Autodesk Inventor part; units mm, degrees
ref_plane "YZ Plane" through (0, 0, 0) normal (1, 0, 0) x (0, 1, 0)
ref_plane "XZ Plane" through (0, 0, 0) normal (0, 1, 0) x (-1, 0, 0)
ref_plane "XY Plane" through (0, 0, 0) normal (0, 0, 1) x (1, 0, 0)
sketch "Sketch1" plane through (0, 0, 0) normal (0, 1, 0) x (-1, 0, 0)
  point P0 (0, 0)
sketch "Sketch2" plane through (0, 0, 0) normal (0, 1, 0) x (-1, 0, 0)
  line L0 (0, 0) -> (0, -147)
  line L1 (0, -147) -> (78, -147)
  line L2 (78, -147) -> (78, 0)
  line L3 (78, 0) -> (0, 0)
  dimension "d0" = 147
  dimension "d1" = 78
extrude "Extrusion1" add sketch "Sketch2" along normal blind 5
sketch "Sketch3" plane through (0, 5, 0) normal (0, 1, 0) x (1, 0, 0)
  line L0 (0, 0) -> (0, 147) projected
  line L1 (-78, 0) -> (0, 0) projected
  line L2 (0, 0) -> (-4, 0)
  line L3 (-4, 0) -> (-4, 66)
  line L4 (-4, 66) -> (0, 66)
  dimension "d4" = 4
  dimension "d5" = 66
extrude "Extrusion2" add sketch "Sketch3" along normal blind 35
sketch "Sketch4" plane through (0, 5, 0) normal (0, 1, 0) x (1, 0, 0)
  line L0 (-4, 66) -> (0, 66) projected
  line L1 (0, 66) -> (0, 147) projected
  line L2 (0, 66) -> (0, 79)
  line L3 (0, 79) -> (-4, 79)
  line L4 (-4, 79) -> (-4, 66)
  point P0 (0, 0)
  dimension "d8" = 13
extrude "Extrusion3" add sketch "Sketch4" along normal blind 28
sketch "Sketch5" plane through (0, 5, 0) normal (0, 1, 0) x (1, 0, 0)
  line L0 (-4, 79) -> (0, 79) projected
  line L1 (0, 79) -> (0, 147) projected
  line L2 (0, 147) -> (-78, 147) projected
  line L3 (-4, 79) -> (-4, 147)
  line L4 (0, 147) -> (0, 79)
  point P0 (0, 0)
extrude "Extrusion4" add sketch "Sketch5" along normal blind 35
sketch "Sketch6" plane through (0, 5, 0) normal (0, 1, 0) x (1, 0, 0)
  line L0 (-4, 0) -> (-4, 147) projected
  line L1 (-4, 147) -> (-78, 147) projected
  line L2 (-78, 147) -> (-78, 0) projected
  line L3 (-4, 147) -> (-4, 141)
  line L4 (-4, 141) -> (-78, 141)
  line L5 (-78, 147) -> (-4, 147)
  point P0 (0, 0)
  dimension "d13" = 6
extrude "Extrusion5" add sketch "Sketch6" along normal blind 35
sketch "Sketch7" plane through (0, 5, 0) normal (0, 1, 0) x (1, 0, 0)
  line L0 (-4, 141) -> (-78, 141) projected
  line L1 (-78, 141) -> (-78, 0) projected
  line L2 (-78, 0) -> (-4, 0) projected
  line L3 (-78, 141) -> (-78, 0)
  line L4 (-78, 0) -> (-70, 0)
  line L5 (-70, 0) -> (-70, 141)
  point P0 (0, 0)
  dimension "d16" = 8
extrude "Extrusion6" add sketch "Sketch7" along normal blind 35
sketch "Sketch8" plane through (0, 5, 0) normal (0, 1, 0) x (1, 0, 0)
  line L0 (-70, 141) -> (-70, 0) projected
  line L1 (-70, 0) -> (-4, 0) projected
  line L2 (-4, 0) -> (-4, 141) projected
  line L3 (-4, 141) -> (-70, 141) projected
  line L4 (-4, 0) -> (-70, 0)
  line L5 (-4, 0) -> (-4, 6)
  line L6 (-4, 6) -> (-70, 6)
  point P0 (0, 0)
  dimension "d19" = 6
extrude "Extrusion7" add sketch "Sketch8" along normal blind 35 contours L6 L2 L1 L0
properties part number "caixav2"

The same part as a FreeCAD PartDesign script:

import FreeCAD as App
import Part
import Sketcher
Q = App.Units.Quantity

doc = App.newDocument("Part")
params = doc.addObject("Spreadsheet::Sheet", "Params")
for row, (alias, value) in enumerate([
    ("sketch1_width", "78 mm"),
    ("sketch1_height", "147 mm"),
    ("pad1_length", "5 mm"),
    ("sketch2_width", "4 mm"),
    ("sketch2_height", "66 mm"),
    ("pad2_length", "35 mm"),
    ("sketch3_height", "13 mm"),
    ("sketch3_width", "4 mm"),
    ("pad3_length", "28 mm"),
    ("sketch4_width", "4 mm"),
    ("sketch4_height", "68 mm"),
    ("pad4_length", "35 mm"),
    ("sketch5_height", "6 mm"),
    ("sketch5_width", "74 mm"),
    ("pad5_length", "35 mm"),
    ("sketch6_width", "8 mm"),
    ("sketch6_height", "141 mm"),
    ("pad6_length", "35 mm"),
    ("sketch7_height", "6 mm"),
    ("sketch7_width", "66 mm"),
    ("pad7_length", "35 mm"),
], start=1):
    params.set(f"A{row}", alias)
    params.set(f"B{row}", "=" + value)
    params.setAlias(f"B{row}", alias)

body = doc.addObject("PartDesign::Body", "Body")

# Sketch on XZ plane
sketch1 = body.newObject("Sketcher::SketchObject", "Sketch")
sketch1.AttachmentSupport = (doc.getObject("XZ_Plane"), [""])
sketch1.MapMode = "FlatFace"
sketch1.addGeometry([
    Part.LineSegment(App.Vector(-78, 0, 0), App.Vector(0, 0, 0)),
    Part.LineSegment(App.Vector(0, 0, 0), App.Vector(0, -147, 0)),
    Part.LineSegment(App.Vector(0, -147, 0), App.Vector(-78, -147, 0)),
    Part.LineSegment(App.Vector(-78, -147, 0), App.Vector(-78, 0, 0)),
], False)
sketch1.addConstraint([
    Sketcher.Constraint("Coincident", 0, 2, 1, 1),
    Sketcher.Constraint("Coincident", 1, 2, 2, 1),
    Sketcher.Constraint("Coincident", 2, 2, 3, 1),
    Sketcher.Constraint("Coincident", 3, 2, 0, 1),
    Sketcher.Constraint("Horizontal", 0),
    Sketcher.Constraint("Vertical", 1),
    Sketcher.Constraint("Horizontal", 2),
    Sketcher.Constraint("Vertical", 3),
    Sketcher.Constraint("Coincident", 0, 2, -1, 1),
    Sketcher.Constraint("DistanceX", 0, 1, 0, 2, Q("78 mm")),
    Sketcher.Constraint("DistanceY", 1, 2, 1, 1, Q("147 mm")),
])
sketch1.setExpression("Constraints[9]", "Params.sketch1_width")
sketch1.setExpression("Constraints[10]", "Params.sketch1_height")
pad1 = body.newObject("PartDesign::Pad", "Pad")
pad1.Profile = sketch1
pad1.setExpression("Length", "Params.pad1_length")
pad1.Reversed = True

# Sketch on XZ plane
sketch2 = body.newObject("Sketcher::SketchObject", "Sketch001")
sketch2.AttachmentSupport = (doc.getObject("XZ_Plane"), [""])
sketch2.MapMode = "FlatFace"
sketch2.AttachmentOffset = App.Placement(App.Vector(0, 0, -5), App.Rotation())
sketch2.addGeometry([
    Part.LineSegment(App.Vector(-4, 0, 0), App.Vector(0, 0, 0)),
    Part.LineSegment(App.Vector(0, 0, 0), App.Vector(0, -66, 0)),
    Part.LineSegment(App.Vector(0, -66, 0), App.Vector(-4, -66, 0)),
    Part.LineSegment(App.Vector(-4, -66, 0), App.Vector(-4, 0, 0)),
], False)
sketch2.addConstraint([
    Sketcher.Constraint("Coincident", 0, 2, 1, 1),
    Sketcher.Constraint("Coincident", 1, 2, 2, 1),
    Sketcher.Constraint("Coincident", 2, 2, 3, 1),
    Sketcher.Constraint("Coincident", 3, 2, 0, 1),
    Sketcher.Constraint("Horizontal", 0),
    Sketcher.Constraint("Vertical", 1),
    Sketcher.Constraint("Horizontal", 2),
    Sketcher.Constraint("Vertical", 3),
    Sketcher.Constraint("Coincident", 0, 2, -1, 1),
    Sketcher.Constraint("DistanceX", 0, 1, 0, 2, Q("4 mm")),
    Sketcher.Constraint("DistanceY", 1, 2, 1, 1, Q("66 mm")),
])
sketch2.setExpression("Constraints[9]", "Params.sketch2_width")
sketch2.setExpression("Constraints[10]", "Params.sketch2_height")
pad2 = body.newObject("PartDesign::Pad", "Pad001")
pad2.Profile = sketch2
pad2.setExpression("Length", "Params.pad2_length")
pad2.Reversed = True

# Sketch on XZ plane
sketch3 = body.newObject("Sketcher::SketchObject", "Sketch002")
sketch3.AttachmentSupport = (doc.getObject("XZ_Plane"), [""])
sketch3.MapMode = "FlatFace"
sketch3.AttachmentOffset = App.Placement(App.Vector(0, 0, -5), App.Rotation())
sketch3.addGeometry([
    Part.LineSegment(App.Vector(-4, -79, 0), App.Vector(-4, -66, 0)),
    Part.LineSegment(App.Vector(-4, -66, 0), App.Vector(0, -66, 0)),
    Part.LineSegment(App.Vector(0, -66, 0), App.Vector(0, -79, 0)),
    Part.LineSegment(App.Vector(0, -79, 0), App.Vector(-4, -79, 0)),
], False)
sketch3.addConstraint([
    Sketcher.Constraint("Coincident", 0, 2, 1, 1),
    Sketcher.Constraint("Coincident", 1, 2, 2, 1),
    Sketcher.Constraint("Coincident", 2, 2, 3, 1),
    Sketcher.Constraint("Coincident", 3, 2, 0, 1),
    Sketcher.Constraint("Vertical", 0),
    Sketcher.Constraint("Horizontal", 1),
    Sketcher.Constraint("Vertical", 2),
    Sketcher.Constraint("Horizontal", 3),
    Sketcher.Constraint("PointOnObject", 1, 2, -2),
    Sketcher.Constraint("DistanceY", 0, 1, 0, 2, Q("13 mm")),
    Sketcher.Constraint("DistanceX", 1, 1, 1, 2, Q("4 mm")),
    Sketcher.Constraint("DistanceY", 0, 2, -1, 1, Q("66 mm")),
])
sketch3.setExpression("Constraints[9]", "Params.sketch3_height")
sketch3.setExpression("Constraints[10]", "Params.sketch3_width")
pad3 = body.newObject("PartDesign::Pad", "Pad002")
pad3.Profile = sketch3
pad3.setExpression("Length", "Params.pad3_length")
pad3.Reversed = True

# Sketch on XZ plane
sketch4 = body.newObject("Sketcher::SketchObject", "Sketch003")
sketch4.AttachmentSupport = (doc.getObject("XZ_Plane"), [""])
sketch4.MapMode = "FlatFace"
sketch4.AttachmentOffset = App.Placement(App.Vector(0, 0, -5), App.Rotation())
sketch4.addGeometry([
    Part.LineSegment(App.Vector(-4, -147, 0), App.Vector(-4, -79, 0)),
    Part.LineSegment(App.Vector(-4, -79, 0), App.Vector(0, -79, 0)),
    Part.LineSegment(App.Vector(0, -79, 0), App.Vector(0, -147, 0)),
    Part.LineSegment(App.Vector(0, -147, 0), App.Vector(-4, -147, 0)),
], False)
sketch4.addConstraint([
    Sketcher.Constraint("Coincident", 0, 2, 1, 1),
    Sketcher.Constraint("Coincident", 1, 2, 2, 1),
    Sketcher.Constraint("Coincident", 2, 2, 3, 1),
    Sketcher.Constraint("Coincident", 3, 2, 0, 1),
    Sketcher.Constraint("Vertical", 0),
    Sketcher.Constraint("Horizontal", 1),
    Sketcher.Constraint("Vertical", 2),
    Sketcher.Constraint("Horizontal", 3),
    Sketcher.Constraint("PointOnObject", 1, 2, -2),
    Sketcher.Constraint("DistanceX", 1, 1, 1, 2, Q("4 mm")),
    Sketcher.Constraint("DistanceY", 0, 1, 0, 2, Q("68 mm")),
    Sketcher.Constraint("DistanceY", 0, 2, -1, 1, Q("79 mm")),
])
sketch4.setExpression("Constraints[9]", "Params.sketch4_width")
sketch4.setExpression("Constraints[10]", "Params.sketch4_height")
pad4 = body.newObject("PartDesign::Pad", "Pad003")
pad4.Profile = sketch4
pad4.setExpression("Length", "Params.pad4_length")
pad4.Reversed = True

# Sketch on XZ plane
sketch5 = body.newObject("Sketcher::SketchObject", "Sketch004")
sketch5.AttachmentSupport = (doc.getObject("XZ_Plane"), [""])
sketch5.MapMode = "FlatFace"
sketch5.AttachmentOffset = App.Placement(App.Vector(0, 0, -5), App.Rotation())
sketch5.addGeometry([
    Part.LineSegment(App.Vector(-78, -141, 0), App.Vector(-4, -141, 0)),
    Part.LineSegment(App.Vector(-4, -141, 0), App.Vector(-4, -147, 0)),
    Part.LineSegment(App.Vector(-4, -147, 0), App.Vector(-78, -147, 0)),
    Part.LineSegment(App.Vector(-78, -147, 0), App.Vector(-78, -141, 0)),
], False)
sketch5.addConstraint([
    Sketcher.Constraint("Coincident", 0, 2, 1, 1),
    Sketcher.Constraint("Coincident", 1, 2, 2, 1),
    Sketcher.Constraint("Coincident", 2, 2, 3, 1),
    Sketcher.Constraint("Coincident", 3, 2, 0, 1),
    Sketcher.Constraint("Horizontal", 0),
    Sketcher.Constraint("Vertical", 1),
    Sketcher.Constraint("Horizontal", 2),
    Sketcher.Constraint("Vertical", 3),
    Sketcher.Constraint("DistanceY", 1, 2, 1, 1, Q("6 mm")),
    Sketcher.Constraint("DistanceX", 0, 1, 0, 2, Q("74 mm")),
    Sketcher.Constraint("DistanceX", 0, 2, -1, 1, Q("4 mm")),
    Sketcher.Constraint("DistanceY", 0, 2, -1, 1, Q("141 mm")),
])
sketch5.setExpression("Constraints[8]", "Params.sketch5_height")
sketch5.setExpression("Constraints[9]", "Params.sketch5_width")
pad5 = body.newObject("PartDesign::Pad", "Pad004")
pad5.Profile = sketch5
pad5.setExpression("Length", "Params.pad5_length")
pad5.Reversed = True

# Sketch on XZ plane
sketch6 = body.newObject("Sketcher::SketchObject", "Sketch005")
sketch6.AttachmentSupport = (doc.getObject("XZ_Plane"), [""])
sketch6.MapMode = "FlatFace"
sketch6.AttachmentOffset = App.Placement(App.Vector(0, 0, -5), App.Rotation())
sketch6.addGeometry([
    Part.LineSegment(App.Vector(-70, 0, 0), App.Vector(-70, -141, 0)),
    Part.LineSegment(App.Vector(-70, -141, 0), App.Vector(-78, -141, 0)),
    Part.LineSegment(App.Vector(-78, -141, 0), App.Vector(-78, 0, 0)),
    Part.LineSegment(App.Vector(-78, 0, 0), App.Vector(-70, 0, 0)),
], False)
sketch6.addConstraint([
    Sketcher.Constraint("Coincident", 0, 2, 1, 1),
    Sketcher.Constraint("Coincident", 1, 2, 2, 1),
    Sketcher.Constraint("Coincident", 2, 2, 3, 1),
    Sketcher.Constraint("Coincident", 3, 2, 0, 1),
    Sketcher.Constraint("Vertical", 0),
    Sketcher.Constraint("Horizontal", 1),
    Sketcher.Constraint("Vertical", 2),
    Sketcher.Constraint("Horizontal", 3),
    Sketcher.Constraint("PointOnObject", 2, 2, -1),
    Sketcher.Constraint("DistanceX", 1, 2, 1, 1, Q("8 mm")),
    Sketcher.Constraint("DistanceY", 0, 2, 0, 1, Q("141 mm")),
    Sketcher.Constraint("DistanceX", 0, 2, -1, 1, Q("70 mm")),
])
sketch6.setExpression("Constraints[9]", "Params.sketch6_width")
sketch6.setExpression("Constraints[10]", "Params.sketch6_height")
pad6 = body.newObject("PartDesign::Pad", "Pad005")
pad6.Profile = sketch6
pad6.setExpression("Length", "Params.pad6_length")
pad6.Reversed = True

# Sketch on XZ plane
sketch7 = body.newObject("Sketcher::SketchObject", "Sketch006")
sketch7.AttachmentSupport = (doc.getObject("XZ_Plane"), [""])
sketch7.MapMode = "FlatFace"
sketch7.AttachmentOffset = App.Placement(App.Vector(0, 0, -5), App.Rotation())
sketch7.addGeometry([
    Part.LineSegment(App.Vector(-4, -6, 0), App.Vector(-70, -6, 0)),
    Part.LineSegment(App.Vector(-70, -6, 0), App.Vector(-70, 0, 0)),
    Part.LineSegment(App.Vector(-70, 0, 0), App.Vector(-4, 0, 0)),
    Part.LineSegment(App.Vector(-4, 0, 0), App.Vector(-4, -6, 0)),
], False)
sketch7.addConstraint([
    Sketcher.Constraint("Coincident", 0, 2, 1, 1),
    Sketcher.Constraint("Coincident", 1, 2, 2, 1),
    Sketcher.Constraint("Coincident", 2, 2, 3, 1),
    Sketcher.Constraint("Coincident", 3, 2, 0, 1),
    Sketcher.Constraint("Horizontal", 0),
    Sketcher.Constraint("Vertical", 1),
    Sketcher.Constraint("Horizontal", 2),
    Sketcher.Constraint("Vertical", 3),
    Sketcher.Constraint("PointOnObject", 1, 2, -1),
    Sketcher.Constraint("DistanceY", 1, 1, 1, 2, Q("6 mm")),
    Sketcher.Constraint("DistanceX", 0, 2, 0, 1, Q("66 mm")),
    Sketcher.Constraint("DistanceX", 0, 2, -1, 1, Q("70 mm")),
])
sketch7.setExpression("Constraints[9]", "Params.sketch7_height")
sketch7.setExpression("Constraints[10]", "Params.sketch7_width")
pad7 = body.newObject("PartDesign::Pad", "Pad006")
pad7.Profile = sketch7
pad7.setExpression("Length", "Params.pad7_length")
pad7.Reversed = True

doc.recompute()
